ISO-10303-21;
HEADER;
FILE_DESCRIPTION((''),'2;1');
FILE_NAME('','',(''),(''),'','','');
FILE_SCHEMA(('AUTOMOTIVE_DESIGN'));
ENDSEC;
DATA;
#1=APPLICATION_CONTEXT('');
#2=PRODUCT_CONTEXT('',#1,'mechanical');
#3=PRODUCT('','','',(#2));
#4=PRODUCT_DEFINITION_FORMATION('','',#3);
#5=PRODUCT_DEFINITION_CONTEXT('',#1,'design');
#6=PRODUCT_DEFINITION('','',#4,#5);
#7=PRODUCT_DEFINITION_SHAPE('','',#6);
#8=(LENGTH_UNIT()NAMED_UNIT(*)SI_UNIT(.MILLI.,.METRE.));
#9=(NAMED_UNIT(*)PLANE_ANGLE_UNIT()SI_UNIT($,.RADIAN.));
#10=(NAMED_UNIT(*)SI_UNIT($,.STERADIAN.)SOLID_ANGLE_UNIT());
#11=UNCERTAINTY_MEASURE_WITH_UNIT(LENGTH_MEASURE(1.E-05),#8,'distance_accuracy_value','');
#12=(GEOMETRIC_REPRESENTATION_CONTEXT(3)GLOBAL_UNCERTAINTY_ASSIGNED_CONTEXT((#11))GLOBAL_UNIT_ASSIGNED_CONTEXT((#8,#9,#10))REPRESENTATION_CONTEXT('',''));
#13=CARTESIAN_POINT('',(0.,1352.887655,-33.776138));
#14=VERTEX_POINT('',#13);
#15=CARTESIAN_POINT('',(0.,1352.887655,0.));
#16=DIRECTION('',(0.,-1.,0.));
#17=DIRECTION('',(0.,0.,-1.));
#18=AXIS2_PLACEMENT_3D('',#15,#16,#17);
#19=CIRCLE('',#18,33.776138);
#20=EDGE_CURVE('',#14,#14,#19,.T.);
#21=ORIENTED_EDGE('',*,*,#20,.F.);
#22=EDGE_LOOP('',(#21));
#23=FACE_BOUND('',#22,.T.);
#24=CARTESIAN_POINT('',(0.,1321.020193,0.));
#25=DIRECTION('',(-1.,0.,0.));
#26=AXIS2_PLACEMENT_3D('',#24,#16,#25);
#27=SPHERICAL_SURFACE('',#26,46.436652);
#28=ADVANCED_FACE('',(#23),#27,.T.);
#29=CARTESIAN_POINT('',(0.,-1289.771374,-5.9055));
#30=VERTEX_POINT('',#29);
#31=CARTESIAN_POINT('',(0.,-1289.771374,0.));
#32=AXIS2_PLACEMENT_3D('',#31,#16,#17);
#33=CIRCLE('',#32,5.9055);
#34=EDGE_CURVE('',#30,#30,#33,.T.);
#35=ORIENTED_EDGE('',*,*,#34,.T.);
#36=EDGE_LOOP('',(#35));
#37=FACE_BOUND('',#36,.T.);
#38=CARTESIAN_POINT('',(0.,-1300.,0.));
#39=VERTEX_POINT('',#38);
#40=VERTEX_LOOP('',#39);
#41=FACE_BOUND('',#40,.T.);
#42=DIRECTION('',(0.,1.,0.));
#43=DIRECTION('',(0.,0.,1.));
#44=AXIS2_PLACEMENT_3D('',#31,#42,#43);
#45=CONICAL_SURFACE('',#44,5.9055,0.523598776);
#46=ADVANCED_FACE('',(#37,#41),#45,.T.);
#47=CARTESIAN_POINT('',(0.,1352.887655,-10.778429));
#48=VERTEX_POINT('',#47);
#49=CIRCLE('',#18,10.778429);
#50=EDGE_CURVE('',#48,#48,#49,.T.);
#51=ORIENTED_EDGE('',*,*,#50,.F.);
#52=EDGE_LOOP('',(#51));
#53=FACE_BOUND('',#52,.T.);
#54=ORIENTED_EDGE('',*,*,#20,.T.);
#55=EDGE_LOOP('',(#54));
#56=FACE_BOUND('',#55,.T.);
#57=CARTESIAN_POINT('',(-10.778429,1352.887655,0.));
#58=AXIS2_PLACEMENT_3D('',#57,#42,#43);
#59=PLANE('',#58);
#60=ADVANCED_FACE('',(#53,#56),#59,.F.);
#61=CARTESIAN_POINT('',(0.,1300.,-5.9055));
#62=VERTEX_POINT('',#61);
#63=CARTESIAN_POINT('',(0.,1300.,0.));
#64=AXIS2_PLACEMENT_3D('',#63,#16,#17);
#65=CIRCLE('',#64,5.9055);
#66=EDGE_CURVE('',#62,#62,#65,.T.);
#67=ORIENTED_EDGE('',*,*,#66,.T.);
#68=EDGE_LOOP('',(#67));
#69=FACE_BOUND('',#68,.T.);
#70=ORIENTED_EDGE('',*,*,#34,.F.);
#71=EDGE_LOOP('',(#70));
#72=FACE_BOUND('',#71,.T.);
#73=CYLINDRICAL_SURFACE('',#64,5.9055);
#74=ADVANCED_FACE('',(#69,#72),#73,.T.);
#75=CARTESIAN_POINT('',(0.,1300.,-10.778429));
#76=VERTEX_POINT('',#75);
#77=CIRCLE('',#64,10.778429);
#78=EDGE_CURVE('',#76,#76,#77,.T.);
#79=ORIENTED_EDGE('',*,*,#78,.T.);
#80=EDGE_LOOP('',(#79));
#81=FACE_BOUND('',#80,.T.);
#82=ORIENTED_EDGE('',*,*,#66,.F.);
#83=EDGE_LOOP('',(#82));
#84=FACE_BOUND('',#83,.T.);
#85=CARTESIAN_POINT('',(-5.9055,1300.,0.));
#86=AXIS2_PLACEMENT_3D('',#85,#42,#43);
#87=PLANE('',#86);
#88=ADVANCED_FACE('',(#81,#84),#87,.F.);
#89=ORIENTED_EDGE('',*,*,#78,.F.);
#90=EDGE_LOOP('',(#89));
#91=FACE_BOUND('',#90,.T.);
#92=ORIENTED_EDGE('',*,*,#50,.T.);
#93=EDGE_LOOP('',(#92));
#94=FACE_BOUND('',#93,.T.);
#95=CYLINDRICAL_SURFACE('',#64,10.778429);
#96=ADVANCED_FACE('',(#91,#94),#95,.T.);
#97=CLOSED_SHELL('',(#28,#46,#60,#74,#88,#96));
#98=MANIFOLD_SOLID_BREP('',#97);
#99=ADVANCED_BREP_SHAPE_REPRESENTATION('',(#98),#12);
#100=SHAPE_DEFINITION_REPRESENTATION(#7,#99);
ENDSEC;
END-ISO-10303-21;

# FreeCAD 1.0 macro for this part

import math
import FreeCAD as App
import Part
import Sketcher
Q = App.Units.Quantity

doc = App.newDocument("Part")
params = doc.addObject("Spreadsheet::Sheet", "Params")
for row, (alias, value) in enumerate([
    ("sketch1_length", "0.465 in"),
    ("revolution_angle", "360 deg"),
], start=1):
    params.set(f"A{row}", alias)
    params.set(f"B{row}", "=" + value)
    params.setAlias(f"B{row}", alias)

body = doc.addObject("PartDesign::Body", "Body")

# Sketch on XY plane
sketch1 = body.newObject("Sketcher::SketchObject", "Sketch")
sketch1.AttachmentSupport = (doc.getObject("XY_Plane"), [""])
sketch1.MapMode = "FlatFace"
sketch1.addGeometry(Part.LineSegment(App.Vector(-5.9, 1300, 0), App.Vector(-5.9, -1289.8, 0)), False)
sketch1.addGeometry(Part.LineSegment(App.Vector(-5.9, -1289.8, 0), App.Vector(0, -1300, 0)), False)
sketch1.addGeometry(Part.LineSegment(App.Vector(0, -1300, 0), App.Vector(0, 1367.5, 0)), False)
sketch1.addGeometry(Part.ArcOfCircle(Part.Circle(App.Vector(0, 1321, 0), App.Vector(0, 0, 1), 46.4), math.radians(90), math.radians(137)), False)
sketch1.addGeometry(Part.LineSegment(App.Vector(-33.8, 1352.9, 0), App.Vector(-10.8, 1352.9, 0)), False)
sketch1.addGeometry(Part.LineSegment(App.Vector(-10.8, 1352.9, 0), App.Vector(-10.8, 1300, 0)), False)
sketch1.addGeometry(Part.LineSegment(App.Vector(-10.8, 1300, 0), App.Vector(-5.9, 1300, 0)), False)
sketch1.addConstraint(Sketcher.Constraint("Coincident", 0, 2, 1, 1))
sketch1.addConstraint(Sketcher.Constraint("Coincident", 1, 2, 2, 1))
sketch1.addConstraint(Sketcher.Constraint("Coincident", 2, 2, 3, 1))
sketch1.addConstraint(Sketcher.Constraint("Coincident", 3, 2, 4, 1))
sketch1.addConstraint(Sketcher.Constraint("Coincident", 4, 2, 5, 1))
sketch1.addConstraint(Sketcher.Constraint("Coincident", 5, 2, 6, 1))
sketch1.addConstraint(Sketcher.Constraint("Coincident", 6, 2, 0, 1))
sketch1.addConstraint(Sketcher.Constraint("Vertical", 0))
sketch1.addConstraint(Sketcher.Constraint("Vertical", 2))
sketch1.addConstraint(Sketcher.Constraint("Horizontal", 4))
sketch1.addConstraint(Sketcher.Constraint("Vertical", 5))
sketch1.addConstraint(Sketcher.Constraint("Horizontal", 6))
sketch1.addConstraint(Sketcher.Constraint("PointOnObject", 3, 3, -2))
sketch1.addConstraint(Sketcher.Constraint("PointOnObject", 1, 2, -2))
sketch1.addConstraint(Sketcher.Constraint("Angle", 1, Q("-60 deg")))
sketch1.addConstraint(Sketcher.Constraint("Distance", 1, Q("0.465 in")))
sketch1.addConstraint(Sketcher.Constraint("Radius", 3, Q("46.436652 mm")))
sketch1.addConstraint(Sketcher.Constraint("DistanceX", 4, 1, 4, 2, Q("22.997708 mm")))
sketch1.addConstraint(Sketcher.Constraint("DistanceX", 6, 1, 6, 2, Q("4.872929 mm")))
sketch1.addConstraint(Sketcher.Constraint("DistanceY", 1, 2, -1, 1, Q("1300 mm")))
sketch1.addConstraint(Sketcher.Constraint("DistanceY", -1, 1, 5, 2, Q("1300 mm")))
sketch1.addConstraint(Sketcher.Constraint("DistanceY", 2, 1, 2, 2, Q("2667.456845 mm")))
sketch1.setExpression("Constraints[15]", "Params.sketch1_length")
revolution = body.newObject("PartDesign::Revolution", "Revolution")
revolution.Profile = sketch1
revolution.ReferenceAxis = (sketch1, ["V_Axis"])
revolution.setExpression("Angle", "Params.revolution_angle")

doc.recompute()
